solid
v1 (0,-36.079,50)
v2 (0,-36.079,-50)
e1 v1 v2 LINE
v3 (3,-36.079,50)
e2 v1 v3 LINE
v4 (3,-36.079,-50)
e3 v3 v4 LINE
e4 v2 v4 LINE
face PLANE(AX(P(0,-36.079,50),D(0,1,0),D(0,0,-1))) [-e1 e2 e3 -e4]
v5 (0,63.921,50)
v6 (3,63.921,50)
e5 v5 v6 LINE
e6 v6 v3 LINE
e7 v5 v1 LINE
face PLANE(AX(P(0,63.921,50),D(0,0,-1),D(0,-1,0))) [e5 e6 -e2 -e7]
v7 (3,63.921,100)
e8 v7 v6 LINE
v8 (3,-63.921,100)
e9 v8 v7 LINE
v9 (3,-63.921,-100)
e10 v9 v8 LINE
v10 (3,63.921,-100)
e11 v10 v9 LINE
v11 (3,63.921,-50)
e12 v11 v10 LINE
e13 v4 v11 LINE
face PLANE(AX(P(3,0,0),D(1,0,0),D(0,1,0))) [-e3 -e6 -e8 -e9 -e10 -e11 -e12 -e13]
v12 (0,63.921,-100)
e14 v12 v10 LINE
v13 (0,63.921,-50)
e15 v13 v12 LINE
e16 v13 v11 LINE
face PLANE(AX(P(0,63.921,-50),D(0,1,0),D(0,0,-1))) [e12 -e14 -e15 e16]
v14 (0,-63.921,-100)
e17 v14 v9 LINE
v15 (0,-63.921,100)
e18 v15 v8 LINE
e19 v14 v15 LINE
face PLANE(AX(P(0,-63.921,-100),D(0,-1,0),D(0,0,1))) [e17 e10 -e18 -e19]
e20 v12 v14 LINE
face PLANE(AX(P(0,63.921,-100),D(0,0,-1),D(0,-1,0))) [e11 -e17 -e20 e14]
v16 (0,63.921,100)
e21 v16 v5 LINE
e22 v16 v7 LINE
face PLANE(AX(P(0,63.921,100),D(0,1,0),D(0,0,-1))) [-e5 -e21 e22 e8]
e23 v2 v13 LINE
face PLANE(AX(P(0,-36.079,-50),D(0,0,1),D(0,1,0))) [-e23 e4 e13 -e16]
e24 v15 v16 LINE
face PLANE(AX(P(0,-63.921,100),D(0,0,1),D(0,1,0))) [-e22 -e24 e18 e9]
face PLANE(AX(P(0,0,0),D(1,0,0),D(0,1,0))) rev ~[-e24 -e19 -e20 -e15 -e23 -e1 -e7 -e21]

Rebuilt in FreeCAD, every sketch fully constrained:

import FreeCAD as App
import Part
import Sketcher
from FreeCAD import Vector

doc = App.newDocument("Part")
body = doc.addObject("PartDesign::Body", "Body")

sketch1 = body.newObject("Sketcher::SketchObject", "Sketch")
sketch1.AttachmentSupport = (doc.getObject("YZ_Plane"), [""])
sketch1.MapMode = "FlatFace"
sketch1.addGeometry([
    Part.LineSegment(Vector(64, 100, 0), Vector(-64, 100, 0)),
    Part.LineSegment(Vector(-64, 100, 0), Vector(-64, -100, 0)),
    Part.LineSegment(Vector(-64, -100, 0), Vector(64, -100, 0)),
    Part.LineSegment(Vector(64, -100, 0), Vector(64, -50, 0)),
    Part.LineSegment(Vector(64, -50, 0), Vector(-36, -50, 0)),
    Part.LineSegment(Vector(-36, -50, 0), Vector(-36, 50, 0)),
    Part.LineSegment(Vector(-36, 50, 0), Vector(64, 50, 0)),
    Part.LineSegment(Vector(64, 50, 0), Vector(64, 100, 0)),
], False)
sketch1.addConstraint([
    Sketcher.Constraint("Coincident", 0, 2, 1, 1),
    Sketcher.Constraint("Coincident", 1, 2, 2, 1),
    Sketcher.Constraint("Coincident", 2, 2, 3, 1),
    Sketcher.Constraint("Coincident", 3, 2, 4, 1),
    Sketcher.Constraint("Coincident", 4, 2, 5, 1),
    Sketcher.Constraint("Coincident", 5, 2, 6, 1),
    Sketcher.Constraint("Coincident", 6, 2, 7, 1),
    Sketcher.Constraint("Coincident", 7, 2, 0, 1),
    Sketcher.Constraint("Horizontal", 0),
    Sketcher.Constraint("Vertical", 1),
    Sketcher.Constraint("Horizontal", 2),
    Sketcher.Constraint("Vertical", 3),
    Sketcher.Constraint("Horizontal", 4),
    Sketcher.Constraint("Vertical", 5),
    Sketcher.Constraint("Horizontal", 6),
    Sketcher.Constraint("Vertical", 7),
    Sketcher.Constraint("Symmetric", 0, 2, 2, 2, -1, 1),
    Sketcher.Constraint("Symmetric", 3, 2, 6, 2, -1),
    Sketcher.Constraint("Equal", 6, 5),
    Sketcher.Constraint("DistanceX", 4, 2, 4, 1, 100.0),
    Sketcher.Constraint("DistanceY", 1, 2, 1, 1, 200.0),
    Sketcher.Constraint("DistanceX", 0, 2, 0, 1, 127.842),
])
pad1 = body.newObject("PartDesign::Pad", "Pad")
pad1.Profile = sketch1
pad1.Length = 3

doc.recompute()
